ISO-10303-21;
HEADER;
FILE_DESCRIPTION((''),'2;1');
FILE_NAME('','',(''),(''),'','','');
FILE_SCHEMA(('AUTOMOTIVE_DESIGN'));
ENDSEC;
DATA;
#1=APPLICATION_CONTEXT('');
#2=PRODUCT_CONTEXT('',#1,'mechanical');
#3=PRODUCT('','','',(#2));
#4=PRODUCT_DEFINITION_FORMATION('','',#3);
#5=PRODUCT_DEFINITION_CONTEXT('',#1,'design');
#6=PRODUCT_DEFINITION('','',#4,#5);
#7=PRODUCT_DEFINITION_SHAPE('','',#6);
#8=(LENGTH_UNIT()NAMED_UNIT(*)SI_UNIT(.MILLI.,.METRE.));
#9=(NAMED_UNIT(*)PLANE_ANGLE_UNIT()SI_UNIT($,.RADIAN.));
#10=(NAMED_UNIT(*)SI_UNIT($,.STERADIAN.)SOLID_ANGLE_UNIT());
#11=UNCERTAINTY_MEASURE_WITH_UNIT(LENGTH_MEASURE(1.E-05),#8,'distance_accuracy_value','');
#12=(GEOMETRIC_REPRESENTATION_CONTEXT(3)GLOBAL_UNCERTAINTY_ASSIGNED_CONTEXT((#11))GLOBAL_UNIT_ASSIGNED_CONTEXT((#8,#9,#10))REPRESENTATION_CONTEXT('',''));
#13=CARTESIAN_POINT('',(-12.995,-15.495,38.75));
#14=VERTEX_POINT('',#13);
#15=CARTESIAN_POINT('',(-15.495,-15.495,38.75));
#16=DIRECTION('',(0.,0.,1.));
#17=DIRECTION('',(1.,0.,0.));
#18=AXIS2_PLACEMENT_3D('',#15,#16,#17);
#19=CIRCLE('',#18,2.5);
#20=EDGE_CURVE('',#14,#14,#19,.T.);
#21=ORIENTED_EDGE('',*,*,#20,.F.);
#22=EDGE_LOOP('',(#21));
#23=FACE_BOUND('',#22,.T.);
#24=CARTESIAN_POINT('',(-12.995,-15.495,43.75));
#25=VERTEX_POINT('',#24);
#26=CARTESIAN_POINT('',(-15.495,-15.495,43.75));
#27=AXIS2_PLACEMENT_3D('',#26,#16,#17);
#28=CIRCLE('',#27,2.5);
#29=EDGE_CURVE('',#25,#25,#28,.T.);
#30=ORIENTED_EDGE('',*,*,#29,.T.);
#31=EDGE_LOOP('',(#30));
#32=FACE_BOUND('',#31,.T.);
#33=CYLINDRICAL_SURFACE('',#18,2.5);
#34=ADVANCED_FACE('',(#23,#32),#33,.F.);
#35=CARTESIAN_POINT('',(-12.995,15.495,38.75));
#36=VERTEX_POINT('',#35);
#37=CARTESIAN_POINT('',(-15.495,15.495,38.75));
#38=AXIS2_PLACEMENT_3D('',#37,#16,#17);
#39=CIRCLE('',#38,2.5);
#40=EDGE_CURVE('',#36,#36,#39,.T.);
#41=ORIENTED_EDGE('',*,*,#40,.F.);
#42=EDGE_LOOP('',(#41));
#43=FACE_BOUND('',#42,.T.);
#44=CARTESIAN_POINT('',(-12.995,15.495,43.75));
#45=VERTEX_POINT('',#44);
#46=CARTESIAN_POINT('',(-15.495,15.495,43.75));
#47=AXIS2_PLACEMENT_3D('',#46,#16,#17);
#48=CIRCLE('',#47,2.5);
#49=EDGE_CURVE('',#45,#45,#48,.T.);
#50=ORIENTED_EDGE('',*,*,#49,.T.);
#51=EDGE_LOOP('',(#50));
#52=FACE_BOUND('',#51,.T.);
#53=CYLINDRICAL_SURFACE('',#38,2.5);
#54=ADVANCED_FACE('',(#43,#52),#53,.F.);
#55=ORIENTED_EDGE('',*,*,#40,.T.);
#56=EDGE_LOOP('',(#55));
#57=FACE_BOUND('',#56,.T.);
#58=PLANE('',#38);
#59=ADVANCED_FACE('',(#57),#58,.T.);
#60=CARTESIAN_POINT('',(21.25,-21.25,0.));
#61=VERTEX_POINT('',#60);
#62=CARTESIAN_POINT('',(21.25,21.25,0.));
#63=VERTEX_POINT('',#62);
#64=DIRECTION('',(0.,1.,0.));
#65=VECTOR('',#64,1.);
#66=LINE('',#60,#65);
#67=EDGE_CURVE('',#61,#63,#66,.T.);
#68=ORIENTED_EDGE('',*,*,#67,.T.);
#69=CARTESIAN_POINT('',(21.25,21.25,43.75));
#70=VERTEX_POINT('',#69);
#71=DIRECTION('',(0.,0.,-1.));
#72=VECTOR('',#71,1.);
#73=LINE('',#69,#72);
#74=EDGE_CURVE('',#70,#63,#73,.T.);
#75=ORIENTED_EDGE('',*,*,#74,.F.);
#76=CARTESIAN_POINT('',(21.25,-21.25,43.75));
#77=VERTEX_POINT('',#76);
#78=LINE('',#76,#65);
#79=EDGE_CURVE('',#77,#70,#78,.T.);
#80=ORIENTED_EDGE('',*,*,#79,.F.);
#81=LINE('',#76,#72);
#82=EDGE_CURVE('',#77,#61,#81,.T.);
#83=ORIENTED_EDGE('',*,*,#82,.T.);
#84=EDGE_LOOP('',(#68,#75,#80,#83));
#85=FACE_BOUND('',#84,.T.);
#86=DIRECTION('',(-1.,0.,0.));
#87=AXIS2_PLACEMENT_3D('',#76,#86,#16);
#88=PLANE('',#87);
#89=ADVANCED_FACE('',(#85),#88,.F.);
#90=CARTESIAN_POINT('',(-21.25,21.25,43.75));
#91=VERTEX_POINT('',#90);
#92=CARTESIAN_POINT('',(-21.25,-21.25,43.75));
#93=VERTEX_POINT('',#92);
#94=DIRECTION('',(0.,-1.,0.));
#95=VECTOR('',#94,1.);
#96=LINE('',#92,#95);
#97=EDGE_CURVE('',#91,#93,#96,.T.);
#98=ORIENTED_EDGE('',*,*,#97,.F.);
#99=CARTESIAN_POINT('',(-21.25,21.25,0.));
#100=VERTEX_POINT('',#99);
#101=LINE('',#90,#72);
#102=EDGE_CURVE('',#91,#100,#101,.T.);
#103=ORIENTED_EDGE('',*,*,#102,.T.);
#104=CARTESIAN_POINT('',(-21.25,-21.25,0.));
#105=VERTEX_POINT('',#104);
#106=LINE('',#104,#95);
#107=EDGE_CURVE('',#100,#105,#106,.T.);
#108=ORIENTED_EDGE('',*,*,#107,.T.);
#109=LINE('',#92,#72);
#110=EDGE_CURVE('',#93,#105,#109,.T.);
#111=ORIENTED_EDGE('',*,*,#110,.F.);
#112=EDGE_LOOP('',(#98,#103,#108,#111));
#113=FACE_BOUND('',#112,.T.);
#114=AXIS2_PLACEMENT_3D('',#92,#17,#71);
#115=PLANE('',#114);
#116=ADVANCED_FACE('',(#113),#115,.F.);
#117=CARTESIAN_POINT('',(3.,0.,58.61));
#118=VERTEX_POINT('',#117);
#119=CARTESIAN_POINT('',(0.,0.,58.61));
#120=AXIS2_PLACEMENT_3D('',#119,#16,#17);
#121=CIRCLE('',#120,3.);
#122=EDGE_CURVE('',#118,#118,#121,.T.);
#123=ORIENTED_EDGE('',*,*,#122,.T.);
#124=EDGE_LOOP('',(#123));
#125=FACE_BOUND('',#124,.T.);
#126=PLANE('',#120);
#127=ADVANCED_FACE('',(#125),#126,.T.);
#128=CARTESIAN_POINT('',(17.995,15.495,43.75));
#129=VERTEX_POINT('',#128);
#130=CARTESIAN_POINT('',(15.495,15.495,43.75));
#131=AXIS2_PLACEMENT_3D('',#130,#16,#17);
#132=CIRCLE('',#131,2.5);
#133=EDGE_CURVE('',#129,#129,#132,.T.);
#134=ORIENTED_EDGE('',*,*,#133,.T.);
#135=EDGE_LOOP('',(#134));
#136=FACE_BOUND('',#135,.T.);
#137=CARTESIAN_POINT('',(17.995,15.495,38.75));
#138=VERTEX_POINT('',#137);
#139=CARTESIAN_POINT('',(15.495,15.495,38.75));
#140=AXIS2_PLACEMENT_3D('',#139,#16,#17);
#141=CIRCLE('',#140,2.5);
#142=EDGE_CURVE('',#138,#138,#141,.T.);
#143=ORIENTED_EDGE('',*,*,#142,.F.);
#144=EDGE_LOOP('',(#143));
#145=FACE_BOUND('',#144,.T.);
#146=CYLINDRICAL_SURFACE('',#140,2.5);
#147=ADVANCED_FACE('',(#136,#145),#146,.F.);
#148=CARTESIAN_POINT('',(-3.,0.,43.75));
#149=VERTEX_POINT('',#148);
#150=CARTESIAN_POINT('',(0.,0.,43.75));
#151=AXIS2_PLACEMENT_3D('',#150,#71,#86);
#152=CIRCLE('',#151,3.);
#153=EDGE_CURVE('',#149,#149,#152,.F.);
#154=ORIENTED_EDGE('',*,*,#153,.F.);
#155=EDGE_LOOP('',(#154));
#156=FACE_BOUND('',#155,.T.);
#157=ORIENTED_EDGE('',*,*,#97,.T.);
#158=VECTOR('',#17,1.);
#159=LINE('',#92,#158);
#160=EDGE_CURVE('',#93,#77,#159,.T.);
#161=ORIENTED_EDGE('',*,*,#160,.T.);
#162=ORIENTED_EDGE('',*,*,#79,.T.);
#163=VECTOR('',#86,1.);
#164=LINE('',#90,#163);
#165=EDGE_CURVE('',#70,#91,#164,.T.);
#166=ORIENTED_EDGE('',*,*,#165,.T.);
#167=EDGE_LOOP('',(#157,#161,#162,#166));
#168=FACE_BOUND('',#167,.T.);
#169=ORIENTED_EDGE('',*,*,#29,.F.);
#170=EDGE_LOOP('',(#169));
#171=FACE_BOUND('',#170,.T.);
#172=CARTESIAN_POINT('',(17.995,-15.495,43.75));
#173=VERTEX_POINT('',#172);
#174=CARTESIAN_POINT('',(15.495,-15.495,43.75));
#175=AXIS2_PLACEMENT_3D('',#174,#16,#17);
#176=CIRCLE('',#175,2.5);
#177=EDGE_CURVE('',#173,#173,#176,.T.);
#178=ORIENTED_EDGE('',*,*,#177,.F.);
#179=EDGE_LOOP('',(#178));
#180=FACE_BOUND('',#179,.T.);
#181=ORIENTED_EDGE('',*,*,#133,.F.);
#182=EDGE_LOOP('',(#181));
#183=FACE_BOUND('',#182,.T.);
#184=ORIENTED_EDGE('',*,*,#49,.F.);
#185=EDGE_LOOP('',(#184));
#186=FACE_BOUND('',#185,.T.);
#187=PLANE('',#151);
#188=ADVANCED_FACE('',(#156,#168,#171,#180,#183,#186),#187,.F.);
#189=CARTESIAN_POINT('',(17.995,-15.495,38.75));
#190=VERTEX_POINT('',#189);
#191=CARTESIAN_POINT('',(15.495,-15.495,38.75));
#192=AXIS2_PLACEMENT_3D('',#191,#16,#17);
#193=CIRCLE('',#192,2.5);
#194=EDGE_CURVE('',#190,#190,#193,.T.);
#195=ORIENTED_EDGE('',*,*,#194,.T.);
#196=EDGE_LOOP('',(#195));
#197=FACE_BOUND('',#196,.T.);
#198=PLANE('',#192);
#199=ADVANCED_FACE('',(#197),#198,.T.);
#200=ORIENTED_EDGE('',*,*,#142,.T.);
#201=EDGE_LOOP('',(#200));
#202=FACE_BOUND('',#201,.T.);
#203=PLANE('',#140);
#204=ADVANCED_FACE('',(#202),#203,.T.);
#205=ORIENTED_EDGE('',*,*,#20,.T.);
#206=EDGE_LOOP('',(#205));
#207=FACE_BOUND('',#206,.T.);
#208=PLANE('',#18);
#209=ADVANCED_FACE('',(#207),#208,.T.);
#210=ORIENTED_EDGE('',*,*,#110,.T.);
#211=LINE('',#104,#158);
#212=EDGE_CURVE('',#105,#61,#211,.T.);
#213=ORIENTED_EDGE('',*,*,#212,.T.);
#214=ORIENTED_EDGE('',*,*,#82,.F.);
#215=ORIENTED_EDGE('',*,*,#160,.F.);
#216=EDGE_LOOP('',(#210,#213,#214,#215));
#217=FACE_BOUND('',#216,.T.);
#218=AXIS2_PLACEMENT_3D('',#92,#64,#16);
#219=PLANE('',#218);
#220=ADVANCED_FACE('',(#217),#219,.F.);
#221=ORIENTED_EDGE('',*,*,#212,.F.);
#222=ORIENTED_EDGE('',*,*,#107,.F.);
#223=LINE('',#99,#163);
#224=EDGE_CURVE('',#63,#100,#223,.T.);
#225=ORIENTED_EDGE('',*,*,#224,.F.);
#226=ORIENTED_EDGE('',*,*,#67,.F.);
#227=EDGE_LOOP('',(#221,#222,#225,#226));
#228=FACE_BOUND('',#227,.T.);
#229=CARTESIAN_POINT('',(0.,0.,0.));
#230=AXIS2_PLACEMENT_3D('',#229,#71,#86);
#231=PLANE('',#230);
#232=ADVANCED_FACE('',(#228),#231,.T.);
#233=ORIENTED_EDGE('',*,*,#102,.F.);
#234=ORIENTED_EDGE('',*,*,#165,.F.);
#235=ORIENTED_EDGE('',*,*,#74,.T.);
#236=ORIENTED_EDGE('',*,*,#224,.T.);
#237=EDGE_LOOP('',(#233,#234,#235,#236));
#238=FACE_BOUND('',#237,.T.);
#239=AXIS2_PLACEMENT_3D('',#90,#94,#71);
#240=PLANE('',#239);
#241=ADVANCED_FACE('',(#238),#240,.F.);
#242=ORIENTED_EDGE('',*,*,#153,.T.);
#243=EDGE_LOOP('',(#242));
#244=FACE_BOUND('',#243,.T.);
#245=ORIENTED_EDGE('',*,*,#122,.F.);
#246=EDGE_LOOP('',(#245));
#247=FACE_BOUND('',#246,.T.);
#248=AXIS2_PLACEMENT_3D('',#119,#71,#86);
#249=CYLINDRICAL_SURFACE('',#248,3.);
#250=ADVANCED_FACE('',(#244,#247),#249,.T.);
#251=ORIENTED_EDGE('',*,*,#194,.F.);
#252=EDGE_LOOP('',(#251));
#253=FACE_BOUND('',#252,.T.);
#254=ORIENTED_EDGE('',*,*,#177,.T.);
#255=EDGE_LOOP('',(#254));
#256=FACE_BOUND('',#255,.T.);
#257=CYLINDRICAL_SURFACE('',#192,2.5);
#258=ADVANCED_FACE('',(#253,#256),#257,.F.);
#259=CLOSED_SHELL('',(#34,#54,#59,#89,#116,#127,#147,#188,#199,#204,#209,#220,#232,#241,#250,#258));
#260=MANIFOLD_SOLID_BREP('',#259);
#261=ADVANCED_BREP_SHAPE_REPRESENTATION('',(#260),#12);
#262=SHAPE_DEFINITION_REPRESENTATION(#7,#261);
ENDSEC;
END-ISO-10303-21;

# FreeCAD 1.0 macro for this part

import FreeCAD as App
import Part
import Sketcher
from FreeCAD import Vector
Q = App.Units.Quantity


def add_polygon(sketch, points):
    """Adds a closed chain of lines whose ends are joined by coincident constraints."""
    first, n = sketch.GeometryCount, len(points)
    for a, b in zip(points, points[1:] + points[:1]):
        sketch.addGeometry(Part.LineSegment(App.Vector(*a, 0), App.Vector(*b, 0)), False)
    for i in range(n):
        sketch.addConstraint(Sketcher.Constraint("Coincident", first + i, 2, first + (i + 1) % n, 1))

doc = App.newDocument("Part")
body = doc.addObject("PartDesign::Body", "Body")

# Sketch on XY plane
sketch1 = body.newObject("Sketcher::SketchObject", "Sketch")
sketch1.AttachmentSupport = (doc.getObject("XY_Plane"), [""])
sketch1.MapMode = "FlatFace"
add_polygon(sketch1, [(-21, 21), (-21, -21), (21, -21), (21, 21)])  # lines 0-3
sketch1.addConstraint(Sketcher.Constraint("Vertical", 0))
sketch1.addConstraint(Sketcher.Constraint("Horizontal", 1))
sketch1.addConstraint(Sketcher.Constraint("Vertical", 2))
sketch1.addConstraint(Sketcher.Constraint("Horizontal", 3))
sketch1.addConstraint(Sketcher.Constraint("Symmetric", 0, 2, 2, 2, -1, 1))
sketch1.addConstraint(Sketcher.Constraint("Equal", 3, 0))
sketch1.addConstraint(Sketcher.Constraint("DistanceX", 1, 1, 1, 2, Q("42.5 mm")))
pad1 = body.newObject("PartDesign::Pad", "Pad")
pad1.Profile = sketch1
pad1.Length = 43.75

# Sketch on XY plane
sketch2 = body.newObject("Sketcher::SketchObject", "Sketch001")
sketch2.AttachmentSupport = (doc.getObject("XY_Plane"), [""])
sketch2.MapMode = "FlatFace"
sketch2.AttachmentOffset = App.Placement(Vector(0, 0, 43.75), App.Rotation())
sketch2.addGeometry(Part.Circle(Vector(-15.5, 15.5, 0), Vector(0, 0, 1), 2.5), False)
sketch2.addGeometry(Part.Circle(Vector(15.5, 15.5, 0), Vector(0, 0, 1), 2.5), False)
sketch2.addGeometry(Part.Circle(Vector(15.5, -15.5, 0), Vector(0, 0, 1), 2.5), False)
sketch2.addGeometry(Part.Circle(Vector(-15.5, -15.5, 0), Vector(0, 0, 1), 2.5), False)
sketch2.addConstraint(Sketcher.Constraint("Equal", 0, 1))
sketch2.addConstraint(Sketcher.Constraint("Equal", 1, 2))
sketch2.addConstraint(Sketcher.Constraint("Equal", 2, 3))
sketch2.addConstraint(Sketcher.Constraint("Symmetric", 0, 3, 2, 3, -1, 1))
sketch2.addConstraint(Sketcher.Constraint("Symmetric", 1, 3, 3, 3, -1, 1))
sketch2.addConstraint(Sketcher.Constraint("Symmetric", 0, 3, 1, 3, -2))
sketch2.addConstraint(Sketcher.Constraint("Diameter", 0, Q("5 mm")))
sketch2.addConstraint(Sketcher.Constraint("DistanceX", 0, 3, 1, 3, Q("30.99 mm")))
sketch2.addConstraint(Sketcher.Constraint("DistanceY", 2, 3, 1, 3, Q("30.99 mm")))
pocket1 = body.newObject("PartDesign::Pocket", "Pocket")
pocket1.Profile = sketch2
pocket1.Length = 5

# Sketch on XY plane
sketch3 = body.newObject("Sketcher::SketchObject", "Sketch002")
sketch3.AttachmentSupport = (doc.getObject("XY_Plane"), [""])
sketch3.MapMode = "FlatFace"
sketch3.AttachmentOffset = App.Placement(Vector(0, 0, 43.75), App.Rotation())
sketch3.addGeometry(Part.Circle(Vector(0, 0, 0), Vector(0, 0, 1), 3), False)
sketch3.addConstraint(Sketcher.Constraint("Coincident", 0, 3, -1, 1))
sketch3.addConstraint(Sketcher.Constraint("Diameter", 0, Q("6 mm")))
pad2 = body.newObject("PartDesign::Pad", "Pad001")
pad2.Profile = sketch3
pad2.Length = 14.86

doc.recompute()
